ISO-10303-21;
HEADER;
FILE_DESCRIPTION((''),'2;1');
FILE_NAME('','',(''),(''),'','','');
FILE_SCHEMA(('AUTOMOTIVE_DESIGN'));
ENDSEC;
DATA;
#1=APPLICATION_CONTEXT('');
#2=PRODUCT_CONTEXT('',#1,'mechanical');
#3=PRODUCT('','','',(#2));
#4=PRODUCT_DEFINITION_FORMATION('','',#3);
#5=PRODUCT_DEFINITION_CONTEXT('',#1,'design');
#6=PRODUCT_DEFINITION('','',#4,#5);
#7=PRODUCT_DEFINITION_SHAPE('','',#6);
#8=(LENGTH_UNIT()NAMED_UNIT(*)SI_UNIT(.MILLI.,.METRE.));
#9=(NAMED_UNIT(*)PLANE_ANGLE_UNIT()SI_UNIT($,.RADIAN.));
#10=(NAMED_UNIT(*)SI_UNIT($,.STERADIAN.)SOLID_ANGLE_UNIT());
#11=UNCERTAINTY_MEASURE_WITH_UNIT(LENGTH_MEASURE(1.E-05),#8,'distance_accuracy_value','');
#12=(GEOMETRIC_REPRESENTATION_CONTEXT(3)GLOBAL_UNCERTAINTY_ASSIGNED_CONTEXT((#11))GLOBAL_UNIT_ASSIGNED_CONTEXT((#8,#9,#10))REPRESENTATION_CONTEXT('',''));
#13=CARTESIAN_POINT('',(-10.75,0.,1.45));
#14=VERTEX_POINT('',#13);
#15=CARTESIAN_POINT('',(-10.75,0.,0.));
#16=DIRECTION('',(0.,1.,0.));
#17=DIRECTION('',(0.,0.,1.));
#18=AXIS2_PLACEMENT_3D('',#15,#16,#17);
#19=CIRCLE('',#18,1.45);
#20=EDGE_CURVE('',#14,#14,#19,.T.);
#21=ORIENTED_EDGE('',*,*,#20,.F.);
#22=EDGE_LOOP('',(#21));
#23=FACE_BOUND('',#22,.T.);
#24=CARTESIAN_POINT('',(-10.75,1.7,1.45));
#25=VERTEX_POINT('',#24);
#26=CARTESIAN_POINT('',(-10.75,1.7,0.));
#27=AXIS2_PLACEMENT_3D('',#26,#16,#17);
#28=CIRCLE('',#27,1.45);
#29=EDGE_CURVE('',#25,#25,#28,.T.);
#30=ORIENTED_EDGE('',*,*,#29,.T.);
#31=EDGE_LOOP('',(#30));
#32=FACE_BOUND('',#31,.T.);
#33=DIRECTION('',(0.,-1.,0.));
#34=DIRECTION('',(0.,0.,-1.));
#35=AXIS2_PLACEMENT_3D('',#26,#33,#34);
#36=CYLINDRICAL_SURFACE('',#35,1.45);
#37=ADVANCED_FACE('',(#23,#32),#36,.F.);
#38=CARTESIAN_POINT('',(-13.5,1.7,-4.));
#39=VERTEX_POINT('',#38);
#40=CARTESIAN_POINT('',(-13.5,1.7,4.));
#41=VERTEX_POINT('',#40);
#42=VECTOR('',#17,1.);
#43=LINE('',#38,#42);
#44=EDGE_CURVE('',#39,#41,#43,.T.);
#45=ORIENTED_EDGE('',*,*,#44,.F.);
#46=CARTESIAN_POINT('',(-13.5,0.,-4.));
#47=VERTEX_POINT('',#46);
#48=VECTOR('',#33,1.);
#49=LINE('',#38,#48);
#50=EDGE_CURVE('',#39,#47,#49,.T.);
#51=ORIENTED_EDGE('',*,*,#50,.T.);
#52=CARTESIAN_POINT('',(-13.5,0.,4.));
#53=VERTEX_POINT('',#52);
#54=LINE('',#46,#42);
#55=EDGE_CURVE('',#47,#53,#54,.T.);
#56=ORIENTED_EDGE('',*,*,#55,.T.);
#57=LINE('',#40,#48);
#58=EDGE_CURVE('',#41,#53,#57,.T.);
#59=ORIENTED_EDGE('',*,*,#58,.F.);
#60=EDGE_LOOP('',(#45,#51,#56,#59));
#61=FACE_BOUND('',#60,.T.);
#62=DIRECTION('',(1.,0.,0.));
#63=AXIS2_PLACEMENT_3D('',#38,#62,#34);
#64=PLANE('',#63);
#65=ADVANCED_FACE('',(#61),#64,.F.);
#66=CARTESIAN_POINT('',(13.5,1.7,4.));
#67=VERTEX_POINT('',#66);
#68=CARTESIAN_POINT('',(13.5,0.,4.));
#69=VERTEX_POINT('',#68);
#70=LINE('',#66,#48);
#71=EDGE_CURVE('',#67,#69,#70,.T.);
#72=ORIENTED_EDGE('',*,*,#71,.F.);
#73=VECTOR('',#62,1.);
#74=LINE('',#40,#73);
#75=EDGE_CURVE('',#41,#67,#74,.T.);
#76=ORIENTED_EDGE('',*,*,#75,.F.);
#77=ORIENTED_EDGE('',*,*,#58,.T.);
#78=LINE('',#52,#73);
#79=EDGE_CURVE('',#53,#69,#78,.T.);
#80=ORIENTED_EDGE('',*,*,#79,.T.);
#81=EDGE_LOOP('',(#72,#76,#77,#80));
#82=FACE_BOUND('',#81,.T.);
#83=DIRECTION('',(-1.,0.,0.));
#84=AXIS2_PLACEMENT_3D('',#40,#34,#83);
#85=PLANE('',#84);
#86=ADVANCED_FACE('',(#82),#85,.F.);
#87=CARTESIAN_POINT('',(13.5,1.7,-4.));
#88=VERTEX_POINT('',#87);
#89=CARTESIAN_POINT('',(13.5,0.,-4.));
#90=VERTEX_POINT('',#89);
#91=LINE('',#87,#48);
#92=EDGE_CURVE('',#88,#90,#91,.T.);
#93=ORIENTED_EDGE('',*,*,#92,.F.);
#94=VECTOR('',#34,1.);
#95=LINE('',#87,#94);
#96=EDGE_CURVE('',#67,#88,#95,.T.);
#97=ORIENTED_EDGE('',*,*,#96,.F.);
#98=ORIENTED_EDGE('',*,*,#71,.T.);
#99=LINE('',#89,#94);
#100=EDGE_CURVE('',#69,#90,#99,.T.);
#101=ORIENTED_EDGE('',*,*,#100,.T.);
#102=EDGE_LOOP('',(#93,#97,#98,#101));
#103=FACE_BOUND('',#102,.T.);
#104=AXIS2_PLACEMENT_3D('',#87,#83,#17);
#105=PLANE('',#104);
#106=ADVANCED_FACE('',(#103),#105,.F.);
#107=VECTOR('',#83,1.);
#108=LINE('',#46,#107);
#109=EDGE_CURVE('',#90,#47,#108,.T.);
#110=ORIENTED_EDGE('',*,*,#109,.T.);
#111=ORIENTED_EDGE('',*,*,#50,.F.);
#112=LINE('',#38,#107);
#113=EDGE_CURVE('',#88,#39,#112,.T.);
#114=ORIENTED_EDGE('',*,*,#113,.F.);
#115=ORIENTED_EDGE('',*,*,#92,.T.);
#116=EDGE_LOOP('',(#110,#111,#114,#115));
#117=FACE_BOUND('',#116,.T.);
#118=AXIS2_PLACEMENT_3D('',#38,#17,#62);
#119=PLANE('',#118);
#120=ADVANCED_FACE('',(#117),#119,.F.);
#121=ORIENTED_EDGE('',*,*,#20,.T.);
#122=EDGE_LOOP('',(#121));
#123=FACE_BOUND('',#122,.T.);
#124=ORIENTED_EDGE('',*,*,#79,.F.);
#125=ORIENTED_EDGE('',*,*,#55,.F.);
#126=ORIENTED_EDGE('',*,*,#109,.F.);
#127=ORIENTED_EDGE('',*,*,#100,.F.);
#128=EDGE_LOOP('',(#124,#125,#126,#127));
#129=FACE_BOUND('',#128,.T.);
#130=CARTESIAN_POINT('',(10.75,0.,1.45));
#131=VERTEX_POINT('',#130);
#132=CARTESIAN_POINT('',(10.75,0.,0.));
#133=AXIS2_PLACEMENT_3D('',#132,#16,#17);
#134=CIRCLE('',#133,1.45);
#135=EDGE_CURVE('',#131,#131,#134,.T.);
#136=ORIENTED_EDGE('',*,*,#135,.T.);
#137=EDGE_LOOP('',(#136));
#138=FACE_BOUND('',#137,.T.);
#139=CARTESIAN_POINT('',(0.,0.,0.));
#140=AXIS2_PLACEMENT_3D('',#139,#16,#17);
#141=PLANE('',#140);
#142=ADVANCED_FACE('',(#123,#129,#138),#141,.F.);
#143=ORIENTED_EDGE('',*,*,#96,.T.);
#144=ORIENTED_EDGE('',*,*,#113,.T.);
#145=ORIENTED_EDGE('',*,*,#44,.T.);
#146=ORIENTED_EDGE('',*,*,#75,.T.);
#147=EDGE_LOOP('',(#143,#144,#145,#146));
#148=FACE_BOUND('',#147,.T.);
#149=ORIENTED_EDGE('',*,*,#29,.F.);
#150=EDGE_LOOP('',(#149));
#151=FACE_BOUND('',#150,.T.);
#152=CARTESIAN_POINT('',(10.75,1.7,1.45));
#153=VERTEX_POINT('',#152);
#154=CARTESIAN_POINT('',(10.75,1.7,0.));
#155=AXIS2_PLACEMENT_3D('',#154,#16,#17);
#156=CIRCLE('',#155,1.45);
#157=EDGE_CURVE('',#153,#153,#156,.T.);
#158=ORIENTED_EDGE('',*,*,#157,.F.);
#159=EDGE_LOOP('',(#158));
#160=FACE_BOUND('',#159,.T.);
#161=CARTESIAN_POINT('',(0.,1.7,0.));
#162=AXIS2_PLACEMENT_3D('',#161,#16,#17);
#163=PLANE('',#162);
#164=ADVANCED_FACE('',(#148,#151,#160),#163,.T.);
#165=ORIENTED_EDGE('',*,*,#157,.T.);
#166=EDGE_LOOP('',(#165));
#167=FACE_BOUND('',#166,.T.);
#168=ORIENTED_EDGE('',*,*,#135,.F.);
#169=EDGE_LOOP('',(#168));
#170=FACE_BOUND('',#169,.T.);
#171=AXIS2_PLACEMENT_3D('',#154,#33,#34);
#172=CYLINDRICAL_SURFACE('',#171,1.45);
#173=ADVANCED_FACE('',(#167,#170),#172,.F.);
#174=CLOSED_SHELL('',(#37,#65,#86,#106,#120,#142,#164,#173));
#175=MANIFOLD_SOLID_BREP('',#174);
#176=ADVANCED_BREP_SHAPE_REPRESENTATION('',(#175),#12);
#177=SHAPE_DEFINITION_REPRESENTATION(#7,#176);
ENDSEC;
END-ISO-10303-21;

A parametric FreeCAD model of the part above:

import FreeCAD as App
import Part
import Sketcher
Q = App.Units.Quantity


def add_polygon(sketch, points):
    """Adds a closed chain of lines whose ends are joined by coincident constraints."""
    first, n = sketch.GeometryCount, len(points)
    for a, b in zip(points, points[1:] + points[:1]):
        sketch.addGeometry(Part.LineSegment(App.Vector(*a, 0), App.Vector(*b, 0)), False)
    for i in range(n):
        sketch.addConstraint(Sketcher.Constraint("Coincident", first + i, 2, first + (i + 1) % n, 1))

doc = App.newDocument("Part")
body = doc.addObject("PartDesign::Body", "Body")

sketch1 = doc.addObject("Sketcher::SketchObject", "Sketch")
body.addObject(sketch1)
sketch1.AttachmentSupport = (doc.XZ_Plane, [""])
sketch1.MapMode = "FlatFace"
add_polygon(sketch1, [(-13.5, -4), (-13.5, 4), (13.5, 4), (13.5, -4)])
sketch1.addGeometry(Part.Circle(App.Vector(-10.8, 0, 0), App.Vector(0, 0, 1), 1.4), False)
sketch1.addGeometry(Part.Circle(App.Vector(10.8, 0, 0), App.Vector(0, 0, 1), 1.4), False)
sketch1.addConstraint([
    Sketcher.Constraint("Vertical", 0),
    Sketcher.Constraint("Horizontal", 1),
    Sketcher.Constraint("Vertical", 2),
    Sketcher.Constraint("Horizontal", 3),
    Sketcher.Constraint("Equal", 4, 5),
    Sketcher.Constraint("Symmetric", 4, 3, 5, 3, -1, 1),
    Sketcher.Constraint("Symmetric", 0, 2, 2, 2, -1, 1),
    Sketcher.Constraint("PointOnObject", 4, 3, -1),
    Sketcher.Constraint("Diameter", 4, Q("2.9 mm")),
    Sketcher.Constraint("DistanceX", 1, 1, 1, 2, Q("27 mm")),
    Sketcher.Constraint("DistanceY", 0, 1, 0, 2, Q("8 mm")),
    Sketcher.Constraint("DistanceX", 4, 3, 5, 3, Q("21.5 mm")),
])
pad1 = doc.addObject("PartDesign::Pad", "Pad")
body.addObject(pad1)
pad1.Profile = sketch1
pad1.Length = 1.7
pad1.Reversed = True

doc.recompute()
